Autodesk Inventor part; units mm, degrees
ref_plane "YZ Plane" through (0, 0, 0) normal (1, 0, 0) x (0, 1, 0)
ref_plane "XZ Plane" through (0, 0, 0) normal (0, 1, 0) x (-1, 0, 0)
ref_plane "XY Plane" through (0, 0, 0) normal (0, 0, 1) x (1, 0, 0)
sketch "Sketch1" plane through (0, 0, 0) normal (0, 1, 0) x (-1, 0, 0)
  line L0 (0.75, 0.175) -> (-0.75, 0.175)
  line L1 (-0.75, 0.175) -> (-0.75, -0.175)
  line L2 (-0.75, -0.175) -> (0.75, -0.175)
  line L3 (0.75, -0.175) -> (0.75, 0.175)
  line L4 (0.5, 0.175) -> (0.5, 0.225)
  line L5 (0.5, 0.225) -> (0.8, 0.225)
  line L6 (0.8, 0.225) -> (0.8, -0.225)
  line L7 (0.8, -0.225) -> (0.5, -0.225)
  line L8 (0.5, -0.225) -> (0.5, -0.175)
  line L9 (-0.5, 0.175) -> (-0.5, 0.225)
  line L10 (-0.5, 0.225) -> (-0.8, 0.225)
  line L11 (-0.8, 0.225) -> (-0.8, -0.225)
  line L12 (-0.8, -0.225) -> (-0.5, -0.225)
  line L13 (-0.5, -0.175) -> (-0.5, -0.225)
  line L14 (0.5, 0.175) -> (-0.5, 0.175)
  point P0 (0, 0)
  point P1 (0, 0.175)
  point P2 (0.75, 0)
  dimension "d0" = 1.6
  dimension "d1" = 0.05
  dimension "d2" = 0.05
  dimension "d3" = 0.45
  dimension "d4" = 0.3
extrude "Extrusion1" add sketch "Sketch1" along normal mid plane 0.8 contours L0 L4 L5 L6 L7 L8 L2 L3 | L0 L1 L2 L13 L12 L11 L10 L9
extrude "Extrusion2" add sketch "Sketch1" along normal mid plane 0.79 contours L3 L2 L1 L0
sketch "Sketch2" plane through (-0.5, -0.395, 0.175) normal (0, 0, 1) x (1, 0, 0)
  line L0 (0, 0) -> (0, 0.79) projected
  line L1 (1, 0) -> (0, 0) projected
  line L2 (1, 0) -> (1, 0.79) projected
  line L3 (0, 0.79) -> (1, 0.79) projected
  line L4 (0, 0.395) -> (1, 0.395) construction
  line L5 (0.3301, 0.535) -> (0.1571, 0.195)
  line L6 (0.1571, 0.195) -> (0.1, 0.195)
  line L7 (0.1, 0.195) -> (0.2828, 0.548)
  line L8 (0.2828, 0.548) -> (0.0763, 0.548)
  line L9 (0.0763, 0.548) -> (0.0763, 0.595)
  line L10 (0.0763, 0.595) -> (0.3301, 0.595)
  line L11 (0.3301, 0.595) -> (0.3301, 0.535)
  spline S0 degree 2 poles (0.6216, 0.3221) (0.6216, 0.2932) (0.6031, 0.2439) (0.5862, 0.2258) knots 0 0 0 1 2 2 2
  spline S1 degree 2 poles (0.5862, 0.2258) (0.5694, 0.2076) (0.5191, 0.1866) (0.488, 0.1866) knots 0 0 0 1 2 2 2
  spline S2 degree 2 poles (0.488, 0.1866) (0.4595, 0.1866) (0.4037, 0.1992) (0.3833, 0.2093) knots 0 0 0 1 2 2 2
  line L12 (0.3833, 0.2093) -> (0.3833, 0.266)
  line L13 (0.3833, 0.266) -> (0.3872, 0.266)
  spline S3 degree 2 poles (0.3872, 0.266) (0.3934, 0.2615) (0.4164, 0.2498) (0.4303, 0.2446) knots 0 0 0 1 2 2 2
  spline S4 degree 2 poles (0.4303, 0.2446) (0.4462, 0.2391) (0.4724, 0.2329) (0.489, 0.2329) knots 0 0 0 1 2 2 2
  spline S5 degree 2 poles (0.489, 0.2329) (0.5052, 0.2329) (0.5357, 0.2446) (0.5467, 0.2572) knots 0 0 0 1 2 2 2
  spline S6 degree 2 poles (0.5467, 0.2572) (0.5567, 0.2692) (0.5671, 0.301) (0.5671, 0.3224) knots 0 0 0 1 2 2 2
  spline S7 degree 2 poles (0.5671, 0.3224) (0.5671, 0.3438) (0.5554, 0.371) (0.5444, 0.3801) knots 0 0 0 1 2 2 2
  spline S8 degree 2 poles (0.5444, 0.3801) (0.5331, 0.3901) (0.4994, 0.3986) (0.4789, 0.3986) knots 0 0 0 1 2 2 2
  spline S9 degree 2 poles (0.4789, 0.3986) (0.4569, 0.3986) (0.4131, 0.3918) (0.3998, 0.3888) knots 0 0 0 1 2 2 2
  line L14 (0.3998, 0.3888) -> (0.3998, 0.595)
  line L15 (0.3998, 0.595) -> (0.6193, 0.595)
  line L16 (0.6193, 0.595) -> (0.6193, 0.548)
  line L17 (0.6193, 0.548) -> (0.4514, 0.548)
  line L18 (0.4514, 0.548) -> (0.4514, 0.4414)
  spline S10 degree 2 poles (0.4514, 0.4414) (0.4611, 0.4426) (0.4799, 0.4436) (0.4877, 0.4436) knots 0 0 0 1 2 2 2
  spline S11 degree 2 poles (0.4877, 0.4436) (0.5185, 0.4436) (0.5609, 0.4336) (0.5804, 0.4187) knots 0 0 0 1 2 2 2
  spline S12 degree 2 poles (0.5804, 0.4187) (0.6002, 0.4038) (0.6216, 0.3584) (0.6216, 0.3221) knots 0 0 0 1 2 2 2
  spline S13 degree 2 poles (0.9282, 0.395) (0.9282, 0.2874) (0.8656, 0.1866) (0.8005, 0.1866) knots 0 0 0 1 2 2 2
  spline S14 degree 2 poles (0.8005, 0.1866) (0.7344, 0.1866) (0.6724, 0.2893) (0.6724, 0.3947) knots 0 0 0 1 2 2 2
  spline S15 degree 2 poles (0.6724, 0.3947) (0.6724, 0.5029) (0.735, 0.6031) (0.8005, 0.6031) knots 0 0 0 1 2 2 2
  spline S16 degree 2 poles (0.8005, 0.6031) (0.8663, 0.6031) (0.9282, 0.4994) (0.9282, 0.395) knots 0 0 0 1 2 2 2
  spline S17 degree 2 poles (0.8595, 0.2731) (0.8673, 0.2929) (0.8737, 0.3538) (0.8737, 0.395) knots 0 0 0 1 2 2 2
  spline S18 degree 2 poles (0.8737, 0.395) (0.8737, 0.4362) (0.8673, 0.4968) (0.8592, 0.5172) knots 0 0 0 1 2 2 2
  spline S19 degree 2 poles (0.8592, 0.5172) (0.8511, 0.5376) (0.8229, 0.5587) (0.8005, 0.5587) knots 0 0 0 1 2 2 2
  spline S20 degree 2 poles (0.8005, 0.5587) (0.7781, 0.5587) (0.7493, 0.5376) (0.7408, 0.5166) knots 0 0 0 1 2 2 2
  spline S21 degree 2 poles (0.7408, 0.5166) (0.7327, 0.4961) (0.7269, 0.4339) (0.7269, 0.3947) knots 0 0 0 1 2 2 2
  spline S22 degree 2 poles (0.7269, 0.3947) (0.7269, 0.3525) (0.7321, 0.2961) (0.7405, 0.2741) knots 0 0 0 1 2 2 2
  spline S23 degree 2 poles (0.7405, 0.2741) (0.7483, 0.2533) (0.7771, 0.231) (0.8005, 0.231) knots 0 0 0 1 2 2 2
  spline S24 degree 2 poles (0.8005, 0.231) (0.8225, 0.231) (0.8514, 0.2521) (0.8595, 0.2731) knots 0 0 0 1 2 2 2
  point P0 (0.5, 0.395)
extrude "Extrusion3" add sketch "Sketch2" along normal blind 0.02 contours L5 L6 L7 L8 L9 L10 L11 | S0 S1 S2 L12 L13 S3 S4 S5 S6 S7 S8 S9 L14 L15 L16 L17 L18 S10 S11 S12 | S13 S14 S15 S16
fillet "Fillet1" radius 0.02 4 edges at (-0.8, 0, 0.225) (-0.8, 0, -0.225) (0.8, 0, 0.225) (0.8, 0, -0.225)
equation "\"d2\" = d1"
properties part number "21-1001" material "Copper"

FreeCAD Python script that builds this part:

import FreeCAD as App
import Part
import Sketcher
from FreeCAD import Vector


def edges_at(feature, points):
    """Names of the edges that pass closest to the given points."""
    edges = feature.Shape.Edges
    near = lambda p: min(range(len(edges)), key=lambda i: edges[i].distToShape(Part.Vertex(*p))[0])
    return sorted({f"Edge{near(p) + 1}" for p in points})

doc = App.newDocument("Part")
params = doc.addObject("Spreadsheet::Sheet", "Params")
for row, (alias, value) in enumerate([
    ("sketch1_width", "0.3 mm"),
    ("sketch1_height", "0.05 mm"),
    ("sketch1_height2", "0.45 mm"),
    ("pad1_length", "0.8 mm"),
    ("sketch2_width", "1.5 mm"),
    ("sketch2_height", "0.35 mm"),
    ("pad2_length", "0.79 mm"),
    ("sketch3_height", "0.06 mm"),
    ("pad3_length", "0.02 mm"),
    ("fillet_radius", "0.02 mm"),
], start=1):
    params.set(f"A{row}", alias)
    params.set(f"B{row}", "=" + value)
    params.setAlias(f"B{row}", alias)

body = doc.addObject("PartDesign::Body", "Body")
body.AllowCompound = True

sketch1 = body.newObject("Sketcher::SketchObject", "Sketch")
sketch1.AttachmentSupport = (doc.getObject("XZ_Plane"), [""])
sketch1.MapMode = "FlatFace"
sketch1.addGeometry([
    Part.LineSegment(Vector(-0.5, 0.17, 0), Vector(-0.75, 0.17, 0)),
    Part.LineSegment(Vector(-0.75, 0.17, 0), Vector(-0.75, -0.17, 0)),
    Part.LineSegment(Vector(-0.75, -0.17, 0), Vector(-0.5, -0.17, 0)),
    Part.LineSegment(Vector(-0.5, -0.17, 0), Vector(-0.5, -0.23, 0)),
    Part.LineSegment(Vector(-0.5, -0.23, 0), Vector(-0.8, -0.23, 0)),
    Part.LineSegment(Vector(-0.8, -0.23, 0), Vector(-0.8, 0.23, 0)),
    Part.LineSegment(Vector(-0.8, 0.23, 0), Vector(-0.5, 0.23, 0)),
    Part.LineSegment(Vector(-0.5, 0.23, 0), Vector(-0.5, 0.17, 0)),
    Part.LineSegment(Vector(0.75, 0.17, 0), Vector(0.5, 0.17, 0)),
    Part.LineSegment(Vector(0.5, 0.17, 0), Vector(0.5, 0.23, 0)),
    Part.LineSegment(Vector(0.5, 0.23, 0), Vector(0.8, 0.23, 0)),
    Part.LineSegment(Vector(0.8, 0.23, 0), Vector(0.8, -0.23, 0)),
    Part.LineSegment(Vector(0.8, -0.23, 0), Vector(0.5, -0.23, 0)),
    Part.LineSegment(Vector(0.5, -0.23, 0), Vector(0.5, -0.17, 0)),
    Part.LineSegment(Vector(0.5, -0.17, 0), Vector(0.75, -0.17, 0)),
    Part.LineSegment(Vector(0.75, -0.17, 0), Vector(0.75, 0.17, 0)),
], False)
sketch1.addConstraint([
    Sketcher.Constraint("Coincident", 0, 2, 1, 1),
    Sketcher.Constraint("Coincident", 1, 2, 2, 1),
    Sketcher.Constraint("Coincident", 2, 2, 3, 1),
    Sketcher.Constraint("Coincident", 3, 2, 4, 1),
    Sketcher.Constraint("Coincident", 4, 2, 5, 1),
    Sketcher.Constraint("Coincident", 5, 2, 6, 1),
    Sketcher.Constraint("Coincident", 6, 2, 7, 1),
    Sketcher.Constraint("Coincident", 7, 2, 0, 1),
    Sketcher.Constraint("Coincident", 8, 2, 9, 1),
    Sketcher.Constraint("Coincident", 9, 2, 10, 1),
    Sketcher.Constraint("Coincident", 10, 2, 11, 1),
    Sketcher.Constraint("Coincident", 11, 2, 12, 1),
    Sketcher.Constraint("Coincident", 12, 2, 13, 1),
    Sketcher.Constraint("Coincident", 13, 2, 14, 1),
    Sketcher.Constraint("Coincident", 14, 2, 15, 1),
    Sketcher.Constraint("Coincident", 15, 2, 8, 1),
    Sketcher.Constraint("Horizontal", 0),
    Sketcher.Constraint("Vertical", 1),
    Sketcher.Constraint("Horizontal", 2),
    Sketcher.Constraint("Vertical", 3),
    Sketcher.Constraint("Horizontal", 4),
    Sketcher.Constraint("Vertical", 5),
    Sketcher.Constraint("Horizontal", 6),
    Sketcher.Constraint("Vertical", 7),
    Sketcher.Constraint("Horizontal", 8),
    Sketcher.Constraint("Vertical", 9),
    Sketcher.Constraint("Horizontal", 10),
    Sketcher.Constraint("Vertical", 11),
    Sketcher.Constraint("Horizontal", 12),
    Sketcher.Constraint("Vertical", 13),
    Sketcher.Constraint("Horizontal", 14),
    Sketcher.Constraint("Vertical", 15),
    Sketcher.Constraint("Symmetric", 2, 2, 8, 2, -1, 1),
    Sketcher.Constraint("Symmetric", 4, 2, 10, 2, -1, 1),
    Sketcher.Constraint("Symmetric", 6, 2, 12, 2, -1, 1),
    Sketcher.Constraint("Symmetric", 0, 2, 14, 2, -1, 1),
    Sketcher.Constraint("Symmetric", 7, 2, 8, 2, -2),
    Sketcher.Constraint("Horizontal", 6, 2, 9, 2),
    Sketcher.Constraint("DistanceX", 4, 2, 4, 1, 0.3),
    Sketcher.Constraint("DistanceY", 3, 2, 3, 1, 0.05),
    Sketcher.Constraint("DistanceY", 5, 1, 5, 2, 0.45),
    Sketcher.Constraint("DistanceX", 4, 2, 1, 2, 0.05),
    Sketcher.Constraint("DistanceX", 7, 2, 8, 2, 1.0),
])
sketch1.setExpression("Constraints[38]", "Params.sketch1_width")
sketch1.setExpression("Constraints[39]", "Params.sketch1_height")
sketch1.setExpression("Constraints[40]", "Params.sketch1_height2")
pad1 = body.newObject("PartDesign::Pad", "Pad")
pad1.Profile = sketch1
pad1.setExpression("Length", "Params.pad1_length")
pad1.Midplane = True

sketch2 = body.newObject("Sketcher::SketchObject", "Sketch001")
sketch2.AttachmentSupport = (doc.getObject("XZ_Plane"), [""])
sketch2.MapMode = "FlatFace"
sketch2.addGeometry([
    Part.LineSegment(Vector(-0.75, -0.17, 0), Vector(-0.75, 0.17, 0)),
    Part.LineSegment(Vector(-0.75, 0.17, 0), Vector(0.75, 0.17, 0)),
    Part.LineSegment(Vector(0.75, 0.17, 0), Vector(0.75, -0.17, 0)),
    Part.LineSegment(Vector(0.75, -0.17, 0), Vector(-0.75, -0.17, 0)),
], False)
sketch2.addConstraint([
    Sketcher.Constraint("Coincident", 0, 2, 1, 1),
    Sketcher.Constraint("Coincident", 1, 2, 2, 1),
    Sketcher.Constraint("Coincident", 2, 2, 3, 1),
    Sketcher.Constraint("Coincident", 3, 2, 0, 1),
    Sketcher.Constraint("Vertical", 0),
    Sketcher.Constraint("Horizontal", 1),
    Sketcher.Constraint("Vertical", 2),
    Sketcher.Constraint("Horizontal", 3),
    Sketcher.Constraint("Symmetric", 0, 2, 2, 2, -1, 1),
    Sketcher.Constraint("DistanceX", 1, 1, 1, 2, 1.5),
    Sketcher.Constraint("DistanceY", 0, 1, 0, 2, 0.35),
])
sketch2.setExpression("Constraints[9]", "Params.sketch2_width")
sketch2.setExpression("Constraints[10]", "Params.sketch2_height")
pad2 = body.newObject("PartDesign::Pad", "Pad001")
pad2.Profile = sketch2
pad2.setExpression("Length", "Params.pad2_length")
pad2.Midplane = True

sketch3 = body.newObject("Sketcher::SketchObject", "Sketch002")
sketch3.AttachmentSupport = (doc.getObject("XY_Plane"), [""])
sketch3.MapMode = "FlatFace"
sketch3.AttachmentOffset = App.Placement(Vector(0, 0, 0.175), App.Rotation())
sketch3.addGeometry([
    Part.LineSegment(Vector(-0.3429, -0.2, 0), Vector(-0.1699, 0.14, 0)),
    Part.LineSegment(Vector(-0.1699, 0.14, 0), Vector(-0.1699, 0.2, 0)),
    Part.LineSegment(Vector(-0.1699, 0.2, 0), Vector(-0.4237, 0.2, 0)),
    Part.LineSegment(Vector(-0.4237, 0.2, 0), Vector(-0.4237, 0.153, 0)),
    Part.LineSegment(Vector(-0.4237, 0.153, 0), Vector(-0.2172, 0.153, 0)),
    Part.LineSegment(Vector(-0.2172, 0.153, 0), Vector(-0.4, -0.2, 0)),
    Part.LineSegment(Vector(-0.4, -0.2, 0), Vector(-0.3429, -0.2, 0)),
    Part.BSplineCurve([Vector(0.1216, -0.0729, 0), Vector(0.1216, -0.1018, 0), Vector(0.1031, -0.1511, 0), Vector(0.0862, -0.1692, 0)], [3, 1, 3], [0, 1, 2], False, 2, [1, 1, 1, 1], False),
    Part.BSplineCurve([Vector(0.0804, 0.0237, 0), Vector(0.1002, 0.0088, 0), Vector(0.1216, -0.0366, 0), Vector(0.1216, -0.0729, 0)], [3, 1, 3], [0, 1, 2], False, 2, [1, 1, 1, 1], False),
    Part.BSplineCurve([Vector(-0.0123, 0.0486, 0), Vector(0.0185, 0.0486, 0), Vector(0.0609, 0.0386, 0), Vector(0.0804, 0.0237, 0)], [3, 1, 3], [0, 1, 2], False, 2, [1, 1, 1, 1], False),
    Part.BSplineCurve([Vector(-0.0486, 0.0464, 0), Vector(-0.0389, 0.0476, 0), Vector(-0.0201, 0.0486, 0), Vector(-0.0123, 0.0486, 0)], [3, 1, 3], [0, 1, 2], False, 2, [1, 1, 1, 1], False),
    Part.LineSegment(Vector(-0.0486, 0.0464, 0), Vector(-0.0486, 0.153, 0)),
    Part.LineSegment(Vector(-0.0486, 0.153, 0), Vector(0.1193, 0.153, 0)),
    Part.LineSegment(Vector(0.1193, 0.153, 0), Vector(0.1193, 0.2, 0)),
    Part.LineSegment(Vector(0.1193, 0.2, 0), Vector(-0.1002, 0.2, 0)),
    Part.LineSegment(Vector(-0.1002, 0.2, 0), Vector(-0.1002, -0.0062, 0)),
    Part.BSplineCurve([Vector(-0.0211, 0.0036, 0), Vector(-0.0431, 0.0036, 0), Vector(-0.0869, -0.0032, 0), Vector(-0.1002, -0.0062, 0)], [3, 1, 3], [0, 1, 2], False, 2, [1, 1, 1, 1], False),
    Part.BSplineCurve([Vector(0.0444, -0.0149, 0), Vector(0.0331, -0.0049, 0), Vector(-0.0006, 0.0036, 0), Vector(-0.0211, 0.0036, 0)], [3, 1, 3], [0, 1, 2], False, 2, [1, 1, 1, 1], False),
    Part.BSplineCurve([Vector(0.0671, -0.0726, 0), Vector(0.0671, -0.0512, 0), Vector(0.0554, -0.024, 0), Vector(0.0444, -0.0149, 0)], [3, 1, 3], [0, 1, 2], False, 2, [1, 1, 1, 1], False),
    Part.BSplineCurve([Vector(0.0467, -0.1378, 0), Vector(0.0567, -0.1258, 0), Vector(0.0671, -0.094, 0), Vector(0.0671, -0.0726, 0)], [3, 1, 3], [0, 1, 2], False, 2, [1, 1, 1, 1], False),
    Part.BSplineCurve([Vector(-0.011, -0.1621, 0), Vector(0.0052, -0.1621, 0), Vector(0.0357, -0.1504, 0), Vector(0.0467, -0.1378, 0)], [3, 1, 3], [0, 1, 2], False, 2, [1, 1, 1, 1], False),
    Part.BSplineCurve([Vector(-0.0697, -0.1504, 0), Vector(-0.0538, -0.1559, 0), Vector(-0.0276, -0.1621, 0), Vector(-0.011, -0.1621, 0)], [3, 1, 3], [0, 1, 2], False, 2, [1, 1, 1, 1], False),
    Part.BSplineCurve([Vector(-0.1128, -0.129, 0), Vector(-0.1066, -0.1335, 0), Vector(-0.0836, -0.1452, 0), Vector(-0.0697, -0.1504, 0)], [3, 1, 3], [0, 1, 2], False, 2, [1, 1, 1, 1], False),
    Part.LineSegment(Vector(-0.1128, -0.129, 0), Vector(-0.1167, -0.129, 0)),
    Part.LineSegment(Vector(-0.1167, -0.129, 0), Vector(-0.1167, -0.1857, 0)),
    Part.BSplineCurve([Vector(-0.012, -0.2084, 0), Vector(-0.0405, -0.2084, 0), Vector(-0.0963, -0.1958, 0), Vector(-0.1167, -0.1857, 0)], [3, 1, 3], [0, 1, 2], False, 2, [1, 1, 1, 1], False),
    Part.BSplineCurve([Vector(0.0862, -0.1692, 0), Vector(0.0694, -0.1874, 0), Vector(0.0191, -0.2084, 0), Vector(-0.012, -0.2084, 0)], [3, 1, 3], [0, 1, 2], False, 2, [1, 1, 1, 1], False),
    Part.BSplineCurve([Vector(0.4282, 0, 0), Vector(0.4282, -0.1076, 0), Vector(0.3656, -0.2084, 0), Vector(0.3005, -0.2084, 0)], [3, 1, 3], [0, 1, 2], False, 2, [1, 1, 1, 1], False),
    Part.BSplineCurve([Vector(0.3005, 0.2081, 0), Vector(0.3663, 0.2081, 0), Vector(0.4282, 0.1044, 0), Vector(0.4282, 0, 0)], [3, 1, 3], [0, 1, 2], False, 2, [1, 1, 1, 1], False),
    Part.BSplineCurve([Vector(0.1724, -0.0003, 0), Vector(0.1724, 0.1079, 0), Vector(0.235, 0.2081, 0), Vector(0.3005, 0.2081, 0)], [3, 1, 3], [0, 1, 2], False, 2, [1, 1, 1, 1], False),
    Part.BSplineCurve([Vector(0.3005, -0.2084, 0), Vector(0.2344, -0.2084, 0), Vector(0.1724, -0.1057, 0), Vector(0.1724, -0.0003, 0)], [3, 1, 3], [0, 1, 2], False, 2, [1, 1, 1, 1], False),
    Part.BSplineCurve([Vector(0.3595, -0.1219, 0), Vector(0.3673, -0.1021, 0), Vector(0.3737, -0.0412, 0), Vector(0.3737, 0, 0)], [3, 1, 3], [0, 1, 2], False, 2, [1, 1, 1, 1], False),
    Part.BSplineCurve([Vector(0.3005, -0.164, 0), Vector(0.3225, -0.164, 0), Vector(0.3514, -0.1429, 0), Vector(0.3595, -0.1219, 0)], [3, 1, 3], [0, 1, 2], False, 2, [1, 1, 1, 1], False),
    Part.BSplineCurve([Vector(0.2405, -0.1209, 0), Vector(0.2483, -0.1417, 0), Vector(0.2771, -0.164, 0), Vector(0.3005, -0.164, 0)], [3, 1, 3], [0, 1, 2], False, 2, [1, 1, 1, 1], False),
    Part.BSplineCurve([Vector(0.2269, -0.0003, 0), Vector(0.2269, -0.0425, 0), Vector(0.2321, -0.0989, 0), Vector(0.2405, -0.1209, 0)], [3, 1, 3], [0, 1, 2], False, 2, [1, 1, 1, 1], False),
    Part.BSplineCurve([Vector(0.2408, 0.1216, 0), Vector(0.2327, 0.1011, 0), Vector(0.2269, 0.0389, 0), Vector(0.2269, -0.0003, 0)], [3, 1, 3], [0, 1, 2], False, 2, [1, 1, 1, 1], False),
    Part.BSplineCurve([Vector(0.3005, 0.1637, 0), Vector(0.2781, 0.1637, 0), Vector(0.2493, 0.1426, 0), Vector(0.2408, 0.1216, 0)], [3, 1, 3], [0, 1, 2], False, 2, [1, 1, 1, 1], False),
    Part.BSplineCurve([Vector(0.3592, 0.1222, 0), Vector(0.3511, 0.1426, 0), Vector(0.3229, 0.1637, 0), Vector(0.3005, 0.1637, 0)], [3, 1, 3], [0, 1, 2], False, 2, [1, 1, 1, 1], False),
    Part.BSplineCurve([Vector(0.3737, 0, 0), Vector(0.3737, 0.0412, 0), Vector(0.3673, 0.1018, 0), Vector(0.3592, 0.1222, 0)], [3, 1, 3], [0, 1, 2], False, 2, [1, 1, 1, 1], False),
], False)
sketch3.addConstraint([
    Sketcher.Constraint("Block", 7),
    Sketcher.Constraint("Block", 8),
    Sketcher.Constraint("Block", 9),
    Sketcher.Constraint("Block", 10),
    Sketcher.Constraint("Block", 16),
    Sketcher.Constraint("Block", 17),
    Sketcher.Constraint("Block", 18),
    Sketcher.Constraint("Block", 19),
    Sketcher.Constraint("Block", 20),
    Sketcher.Constraint("Block", 21),
    Sketcher.Constraint("Block", 22),
    Sketcher.Constraint("Block", 25),
    Sketcher.Constraint("Block", 26),
    Sketcher.Constraint("Block", 27),
    Sketcher.Constraint("Block", 28),
    Sketcher.Constraint("Block", 29),
    Sketcher.Constraint("Block", 30),
    Sketcher.Constraint("Block", 31),
    Sketcher.Constraint("Block", 32),
    Sketcher.Constraint("Block", 33),
    Sketcher.Constraint("Block", 34),
    Sketcher.Constraint("Block", 35),
    Sketcher.Constraint("Block", 36),
    Sketcher.Constraint("Block", 37),
    Sketcher.Constraint("Block", 38),
    Sketcher.Constraint("Coincident", 0, 2, 1, 1),
    Sketcher.Constraint("Coincident", 1, 2, 2, 1),
    Sketcher.Constraint("Coincident", 2, 2, 3, 1),
    Sketcher.Constraint("Coincident", 3, 2, 4, 1),
    Sketcher.Constraint("Coincident", 4, 2, 5, 1),
    Sketcher.Constraint("Coincident", 5, 2, 6, 1),
    Sketcher.Constraint("Coincident", 6, 2, 0, 1),
    Sketcher.Constraint("Coincident", 10, 1, 11, 1),
    Sketcher.Constraint("Coincident", 11, 2, 12, 1),
    Sketcher.Constraint("Coincident", 12, 2, 13, 1),
    Sketcher.Constraint("Coincident", 13, 2, 14, 1),
    Sketcher.Constraint("Coincident", 14, 2, 15, 1),
    Sketcher.Constraint("Coincident", 15, 2, 16, 2),
    Sketcher.Constraint("Coincident", 22, 1, 23, 1),
    Sketcher.Constraint("Coincident", 23, 2, 24, 1),
    Sketcher.Constraint("Coincident", 24, 2, 25, 2),
    Sketcher.Constraint("Vertical", 1),
    Sketcher.Constraint("Horizontal", 2),
    Sketcher.Constraint("Vertical", 3),
    Sketcher.Constraint("Horizontal", 4),
    Sketcher.Constraint("Horizontal", 6),
    Sketcher.Constraint("Vertical", 11),
    Sketcher.Constraint("Horizontal", 12),
    Sketcher.Constraint("Vertical", 13),
    Sketcher.Constraint("Horizontal", 14),
    Sketcher.Constraint("Vertical", 15),
    Sketcher.Constraint("Horizontal", 23),
    Sketcher.Constraint("Vertical", 24),
    Sketcher.Constraint("Horizontal", 4, 2, 11, 2),
    Sketcher.Constraint("Horizontal", 2, 2, 13, 2),
    Sketcher.Constraint("DistanceY", 1, 1, 1, 2, 0.06),
    Sketcher.Constraint("DistanceY", -1, 1, 1, 2, 0.2),
    Sketcher.Constraint("DistanceX", 5, 2, -1, 1, 0.4),
    Sketcher.Constraint("DistanceY", 5, 2, -1, 1, 0.2),
    Sketcher.Constraint("DistanceX", 6, 1, 6, 2, 0.057),
    Sketcher.Constraint("DistanceX", 12, 1, 12, 2, 0.168),
    Sketcher.Constraint("DistanceY", 3, 2, 3, 1, 0.047),
    Sketcher.Constraint("DistanceX", 0, 2, -1, 1, 0.17),
    Sketcher.Constraint("DistanceX", 2, 2, 2, 1, 0.2538),
    Sketcher.Constraint("DistanceX", 4, 1, 4, 2, 0.2065),
])
sketch3.setExpression("Constraints[55]", "Params.sketch3_height")
pad3 = body.newObject("PartDesign::Pad", "Pad002")
pad3.Profile = sketch3
pad3.setExpression("Length", "Params.pad3_length")
doc.recompute()

fillet = body.newObject("PartDesign::Fillet", "Fillet")
fillet.Base = (pad3, edges_at(pad3, [
    (-0.8, 0, 0.225),
    (-0.8, 0, -0.225),
    (0.8, 0, 0.225),
    (0.8, 0, -0.225),
]))
fillet.setExpression("Radius", "Params.fillet_radius")

doc.recompute()
